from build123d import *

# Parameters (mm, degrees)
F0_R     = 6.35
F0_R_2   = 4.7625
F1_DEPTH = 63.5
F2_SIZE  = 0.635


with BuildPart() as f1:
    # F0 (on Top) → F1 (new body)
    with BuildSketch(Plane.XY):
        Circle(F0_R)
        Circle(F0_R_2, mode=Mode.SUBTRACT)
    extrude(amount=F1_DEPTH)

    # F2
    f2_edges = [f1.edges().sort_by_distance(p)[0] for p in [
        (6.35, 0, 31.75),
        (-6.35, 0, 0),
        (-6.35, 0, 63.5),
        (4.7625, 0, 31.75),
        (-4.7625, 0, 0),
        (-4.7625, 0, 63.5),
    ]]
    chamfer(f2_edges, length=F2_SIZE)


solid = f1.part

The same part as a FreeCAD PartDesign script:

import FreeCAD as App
import Part
import Sketcher
Q = App.Units.Quantity

doc = App.newDocument("Part")
body = doc.addObject("PartDesign::Body", "Body")

sketch1 = body.newObject("Sketcher::SketchObject", "Sketch")
sketch1.AttachmentSupport = (doc.getObject("XY_Plane"), [""])
sketch1.MapMode = "FlatFace"
sketch1.addGeometry([
    Part.Circle(App.Vector(0, 0, 0), App.Vector(0, 0, 1), 6.3),
    Part.Circle(App.Vector(0, 0, 0), App.Vector(0, 0, 1), 4.8),
], False)
sketch1.addConstraint([
    Sketcher.Constraint("Coincident", 0, 3, -1, 1),
    Sketcher.Constraint("Coincident", 1, 3, -1, 1),
    Sketcher.Constraint("Diameter", 0, Q("0.5 in")),
    Sketcher.Constraint("Diameter", 1, Q("0.375 in")),
])
pad1 = body.newObject("PartDesign::Pad", "Pad")
pad1.Profile = sketch1
pad1.Length = Q("2.5 in")
doc.recompute()

chamfer = body.newObject("PartDesign::Chamfer", "Chamfer")
chamfer.Base = (pad1, ["Edge1"])
chamfer.UseAllEdges = True
chamfer.Size = Q("0.025 in")

doc.recompute()
